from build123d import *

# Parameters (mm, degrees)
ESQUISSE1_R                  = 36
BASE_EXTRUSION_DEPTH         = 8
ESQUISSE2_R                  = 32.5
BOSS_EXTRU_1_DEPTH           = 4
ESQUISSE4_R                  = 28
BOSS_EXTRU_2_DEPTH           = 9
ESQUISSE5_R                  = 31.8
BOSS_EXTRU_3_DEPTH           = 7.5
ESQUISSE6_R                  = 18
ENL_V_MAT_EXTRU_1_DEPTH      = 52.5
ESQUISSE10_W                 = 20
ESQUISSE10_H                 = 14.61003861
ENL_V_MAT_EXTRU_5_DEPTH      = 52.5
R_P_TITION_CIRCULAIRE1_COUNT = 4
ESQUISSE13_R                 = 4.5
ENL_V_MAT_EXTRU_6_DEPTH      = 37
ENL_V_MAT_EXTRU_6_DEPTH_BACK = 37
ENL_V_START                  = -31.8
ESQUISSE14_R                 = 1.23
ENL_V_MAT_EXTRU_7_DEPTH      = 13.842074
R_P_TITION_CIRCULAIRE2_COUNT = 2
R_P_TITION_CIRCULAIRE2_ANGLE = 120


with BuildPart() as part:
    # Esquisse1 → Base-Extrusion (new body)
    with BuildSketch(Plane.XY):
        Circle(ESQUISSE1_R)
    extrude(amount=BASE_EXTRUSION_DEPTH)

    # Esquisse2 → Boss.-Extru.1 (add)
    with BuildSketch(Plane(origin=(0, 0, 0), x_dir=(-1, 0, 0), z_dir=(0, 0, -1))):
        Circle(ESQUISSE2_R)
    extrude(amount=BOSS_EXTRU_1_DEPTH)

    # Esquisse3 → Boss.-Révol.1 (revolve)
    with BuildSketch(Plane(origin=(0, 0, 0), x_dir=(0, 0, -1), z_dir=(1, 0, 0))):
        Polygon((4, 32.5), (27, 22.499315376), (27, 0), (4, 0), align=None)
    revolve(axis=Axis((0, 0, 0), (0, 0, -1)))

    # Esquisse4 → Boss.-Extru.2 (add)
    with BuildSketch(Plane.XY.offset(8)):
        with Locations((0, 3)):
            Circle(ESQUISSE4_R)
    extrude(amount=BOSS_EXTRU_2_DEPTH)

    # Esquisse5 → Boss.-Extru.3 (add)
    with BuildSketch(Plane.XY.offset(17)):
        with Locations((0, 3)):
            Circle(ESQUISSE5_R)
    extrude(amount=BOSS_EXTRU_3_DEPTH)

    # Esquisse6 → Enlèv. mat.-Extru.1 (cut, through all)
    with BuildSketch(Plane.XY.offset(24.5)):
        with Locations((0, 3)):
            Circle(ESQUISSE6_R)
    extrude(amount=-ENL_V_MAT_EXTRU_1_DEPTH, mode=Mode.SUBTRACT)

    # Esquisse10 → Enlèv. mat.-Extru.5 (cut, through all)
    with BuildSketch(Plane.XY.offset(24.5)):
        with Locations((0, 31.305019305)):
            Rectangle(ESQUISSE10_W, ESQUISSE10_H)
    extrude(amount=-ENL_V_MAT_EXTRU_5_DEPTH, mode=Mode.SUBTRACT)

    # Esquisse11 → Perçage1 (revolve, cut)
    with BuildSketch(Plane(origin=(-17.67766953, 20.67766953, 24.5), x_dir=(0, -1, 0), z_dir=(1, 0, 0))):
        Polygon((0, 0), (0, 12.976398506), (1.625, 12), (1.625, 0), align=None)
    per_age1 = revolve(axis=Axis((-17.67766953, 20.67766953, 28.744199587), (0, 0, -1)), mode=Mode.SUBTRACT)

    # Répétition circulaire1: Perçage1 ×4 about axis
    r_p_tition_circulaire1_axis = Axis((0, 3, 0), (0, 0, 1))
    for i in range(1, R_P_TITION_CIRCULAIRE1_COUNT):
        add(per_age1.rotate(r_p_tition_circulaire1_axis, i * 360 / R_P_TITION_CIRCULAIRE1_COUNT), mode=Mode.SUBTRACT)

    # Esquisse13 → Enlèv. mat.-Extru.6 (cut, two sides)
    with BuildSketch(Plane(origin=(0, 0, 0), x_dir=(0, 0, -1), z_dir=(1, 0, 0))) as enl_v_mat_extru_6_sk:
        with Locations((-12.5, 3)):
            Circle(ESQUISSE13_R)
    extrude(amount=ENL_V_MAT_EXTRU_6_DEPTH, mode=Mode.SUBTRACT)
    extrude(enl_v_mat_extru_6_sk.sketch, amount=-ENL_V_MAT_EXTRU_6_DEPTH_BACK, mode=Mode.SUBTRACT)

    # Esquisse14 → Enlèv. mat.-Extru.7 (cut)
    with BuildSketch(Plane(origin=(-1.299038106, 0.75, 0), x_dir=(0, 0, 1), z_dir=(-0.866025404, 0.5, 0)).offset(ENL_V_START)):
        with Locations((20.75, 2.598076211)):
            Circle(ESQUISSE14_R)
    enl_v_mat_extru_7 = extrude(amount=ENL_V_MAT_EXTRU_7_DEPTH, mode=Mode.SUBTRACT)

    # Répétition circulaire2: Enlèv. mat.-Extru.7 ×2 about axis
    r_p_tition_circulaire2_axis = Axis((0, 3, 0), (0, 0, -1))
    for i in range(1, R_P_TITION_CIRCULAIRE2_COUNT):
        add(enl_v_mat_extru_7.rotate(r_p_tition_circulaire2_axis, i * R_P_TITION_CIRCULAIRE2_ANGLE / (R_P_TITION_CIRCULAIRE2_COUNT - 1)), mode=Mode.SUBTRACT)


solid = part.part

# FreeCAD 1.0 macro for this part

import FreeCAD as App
import Part
import Sketcher
from FreeCAD import Vector
Q = App.Units.Quantity

doc = App.newDocument("Part")
body = doc.addObject("PartDesign::Body", "Body")

# Sketch on XY plane
sketch1 = body.newObject("Sketcher::SketchObject", "Sketch")
sketch1.AttachmentSupport = (doc.getObject("XY_Plane"), [""])
sketch1.MapMode = "FlatFace"
sketch1.addGeometry(Part.Circle(Vector(0, 0, 0), Vector(0, 0, 1), 36), False)
sketch1.addConstraint(Sketcher.Constraint("Coincident", 0, 3, -1, 1))
sketch1.addConstraint(Sketcher.Constraint("Diameter", 0, 72.0))
pad1 = body.newObject("PartDesign::Pad", "Pad")
pad1.Profile = sketch1
pad1.Length = 8

# Sketch on XY plane
sketch2 = body.newObject("Sketcher::SketchObject", "Sketch001")
sketch2.AttachmentSupport = (doc.getObject("XY_Plane"), [""])
sketch2.MapMode = "FlatFace"
sketch2.addGeometry(Part.Circle(Vector(0, 0, 0), Vector(0, 0, 1), 32), False)
sketch2.addConstraint(Sketcher.Constraint("Coincident", 0, 3, -1, 1))
sketch2.addConstraint(Sketcher.Constraint("Diameter", 0, 65.0))
pad2 = body.newObject("PartDesign::Pad", "Pad001")
pad2.Profile = sketch2
pad2.Length = 4
pad2.Reversed = True

# Sketch on YZ plane
sketch3 = body.newObject("Sketcher::SketchObject", "Sketch002")
sketch3.AttachmentSupport = (doc.getObject("YZ_Plane"), [""])
sketch3.MapMode = "FlatFace"
sketch3.addGeometry(Part.LineSegment(Vector(22, -27, 0), Vector(32, -4, 0)), False)
sketch3.addGeometry(Part.LineSegment(Vector(32, -4, 0), Vector(0, -4, 0)), False)
sketch3.addGeometry(Part.LineSegment(Vector(0, -4, 0), Vector(0, -27, 0)), False)
sketch3.addGeometry(Part.LineSegment(Vector(0, -27, 0), Vector(22, -27, 0)), False)
sketch3.addConstraint(Sketcher.Constraint("Coincident", 0, 2, 1, 1))
sketch3.addConstraint(Sketcher.Constraint("Coincident", 1, 2, 2, 1))
sketch3.addConstraint(Sketcher.Constraint("Coincident", 2, 2, 3, 1))
sketch3.addConstraint(Sketcher.Constraint("Coincident", 3, 2, 0, 1))
sketch3.addConstraint(Sketcher.Constraint("Horizontal", 1))
sketch3.addConstraint(Sketcher.Constraint("Vertical", 2))
sketch3.addConstraint(Sketcher.Constraint("Horizontal", 3))
sketch3.addConstraint(Sketcher.Constraint("PointOnObject", 1, 2, -2))
sketch3.addConstraint(Sketcher.Constraint("DistanceY", 2, 2, 2, 1, 23.0))
sketch3.addConstraint(Sketcher.Constraint("DistanceX", 1, 2, 1, 1, 32.5))
sketch3.addConstraint(Sketcher.Constraint("DistanceY", 0, 2, -1, 1, 4.0))
sketch3.addConstraint(Sketcher.Constraint("Angle", 0, Q("66.5 deg")))
revolution = body.newObject("PartDesign::Revolution", "Revolution")
revolution.Profile = sketch3
revolution.ReferenceAxis = (sketch3, ["V_Axis"])
revolution.Angle = 360

# Sketch on XY plane
sketch4 = body.newObject("Sketcher::SketchObject", "Sketch003")
sketch4.AttachmentSupport = (doc.getObject("XY_Plane"), [""])
sketch4.MapMode = "FlatFace"
sketch4.AttachmentOffset = App.Placement(Vector(0, 0, 8), App.Rotation())
sketch4.addGeometry(Part.Circle(Vector(0, 3, 0), Vector(0, 0, 1), 28), False)
sketch4.addConstraint(Sketcher.Constraint("PointOnObject", 0, 3, -2))
sketch4.addConstraint(Sketcher.Constraint("Diameter", 0, 56.0))
sketch4.addConstraint(Sketcher.Constraint("DistanceY", -1, 1, 0, 3, 3.0))
pad3 = body.newObject("PartDesign::Pad", "Pad002")
pad3.Profile = sketch4
pad3.Length = 9

# Sketch on XY plane
sketch5 = body.newObject("Sketcher::SketchObject", "Sketch004")
sketch5.AttachmentSupport = (doc.getObject("XY_Plane"), [""])
sketch5.MapMode = "FlatFace"
sketch5.AttachmentOffset = App.Placement(Vector(0, 0, 17), App.Rotation())
sketch5.addGeometry(Part.Circle(Vector(0, 3, 0), Vector(0, 0, 1), 32), False)
sketch5.addConstraint(Sketcher.Constraint("PointOnObject", 0, 3, -2))
sketch5.addConstraint(Sketcher.Constraint("Diameter", 0, 63.6))
sketch5.addConstraint(Sketcher.Constraint("DistanceY", -1, 1, 0, 3, 3.0))
pad4 = body.newObject("PartDesign::Pad", "Pad003")
pad4.Profile = sketch5
pad4.Length = 7.5

# Sketch on XY plane
sketch6 = body.newObject("Sketcher::SketchObject", "Sketch005")
sketch6.AttachmentSupport = (doc.getObject("XY_Plane"), [""])
sketch6.MapMode = "FlatFace"
sketch6.AttachmentOffset = App.Placement(Vector(0, 0, 24.5), App.Rotation())
sketch6.addGeometry(Part.Circle(Vector(0, 3, 0), Vector(0, 0, 1), 18), False)
sketch6.addConstraint(Sketcher.Constraint("PointOnObject", 0, 3, -2))
sketch6.addConstraint(Sketcher.Constraint("Diameter", 0, 36.0))
sketch6.addConstraint(Sketcher.Constraint("DistanceY", -1, 1, 0, 3, 3.0))
pocket1 = body.newObject("PartDesign::Pocket", "Pocket")
pocket1.Profile = sketch6
pocket1.Type = "ThroughAll"

# Sketch on XY plane
sketch7 = body.newObject("Sketcher::SketchObject", "Sketch006")
sketch7.AttachmentSupport = (doc.getObject("XY_Plane"), [""])
sketch7.MapMode = "FlatFace"
sketch7.AttachmentOffset = App.Placement(Vector(0, 0, 24.5), App.Rotation())
sketch7.addGeometry(Part.LineSegment(Vector(-10, 39, 0), Vector(-10, 24, 0)), False)
sketch7.addGeometry(Part.LineSegment(Vector(-10, 24, 0), Vector(10, 24, 0)), False)
sketch7.addGeometry(Part.LineSegment(Vector(10, 24, 0), Vector(10, 39, 0)), False)
sketch7.addGeometry(Part.LineSegment(Vector(10, 39, 0), Vector(-10, 39, 0)), False)
sketch7.addConstraint(Sketcher.Constraint("Coincident", 0, 2, 1, 1))
sketch7.addConstraint(Sketcher.Constraint("Coincident", 1, 2, 2, 1))
sketch7.addConstraint(Sketcher.Constraint("Coincident", 2, 2, 3, 1))
sketch7.addConstraint(Sketcher.Constraint("Coincident", 3, 2, 0, 1))
sketch7.addConstraint(Sketcher.Constraint("Vertical", 0))
sketch7.addConstraint(Sketcher.Constraint("Horizontal", 1))
sketch7.addConstraint(Sketcher.Constraint("Vertical", 2))
sketch7.addConstraint(Sketcher.Constraint("Horizontal", 3))
sketch7.addConstraint(Sketcher.Constraint("DistanceX", 1, 1, 1, 2, 20.0))
sketch7.addConstraint(Sketcher.Constraint("DistanceX", 0, 2, -1, 1, 10.0))
sketch7.addConstraint(Sketcher.Constraint("DistanceY", -1, 1, 0, 2, 24.0))
sketch7.addConstraint(Sketcher.Constraint("DistanceY", 0, 2, 0, 1, 14.610039))
pocket2 = body.newObject("PartDesign::Pocket", "Pocket001")
pocket2.Profile = sketch7
pocket2.Type = "ThroughAll"

# Sketch on YZ plane
sketch8 = body.newObject("Sketcher::SketchObject", "Sketch007")
sketch8.AttachmentSupport = (doc.getObject("YZ_Plane"), [""])
sketch8.MapMode = "FlatFace"
sketch8.AttachmentOffset = App.Placement(Vector(0, 0, -17.67767), App.Rotation())
sketch8.addGeometry(Part.LineSegment(Vector(20.7, 11.5, 0), Vector(20.7, 24.5, 0)), False)
sketch8.addGeometry(Part.LineSegment(Vector(20.7, 24.5, 0), Vector(19.1, 24.5, 0)), False)
sketch8.addGeometry(Part.LineSegment(Vector(19.1, 24.5, 0), Vector(19.1, 12.5, 0)), False)
sketch8.addGeometry(Part.LineSegment(Vector(19.1, 12.5, 0), Vector(20.7, 11.5, 0)), False)
sketch8.addGeometry(Part.LineSegment(Vector(20.7, 24.5, 0), Vector(20.7, 11.5, 0)), True)  # axis
sketch8.addConstraint(Sketcher.Constraint("Coincident", 0, 2, 1, 1))
sketch8.addConstraint(Sketcher.Constraint("Coincident", 1, 2, 2, 1))
sketch8.addConstraint(Sketcher.Constraint("Coincident", 2, 2, 3, 1))
sketch8.addConstraint(Sketcher.Constraint("Coincident", 3, 2, 0, 1))
sketch8.addConstraint(Sketcher.Constraint("Vertical", 0))
sketch8.addConstraint(Sketcher.Constraint("Horizontal", 1))
sketch8.addConstraint(Sketcher.Constraint("Vertical", 2))
sketch8.addConstraint(Sketcher.Constraint("Vertical", 4))
sketch8.addConstraint(Sketcher.Constraint("Coincident", 4, 1, 0, 2))
sketch8.addConstraint(Sketcher.Constraint("Equal", 0, 4))
sketch8.addConstraint(Sketcher.Constraint("DistanceY", 2, 2, 2, 1, 12.0))
sketch8.addConstraint(Sketcher.Constraint("Angle", 3, Q("-31 deg")))
sketch8.addConstraint(Sketcher.Constraint("DistanceY", -1, 1, 0, 2, 24.5))
sketch8.addConstraint(Sketcher.Constraint("DistanceX", 1, 2, 1, 1, 1.625))
sketch8.addConstraint(Sketcher.Constraint("DistanceX", -1, 1, 0, 2, 20.67767))
groove = body.newObject("PartDesign::Groove", "Groove")
groove.Profile = sketch8
groove.ReferenceAxis = (sketch8, ["Axis0"])
groove.Angle = 360
doc.recompute()

datumline = body.newObject("PartDesign::Line", "DatumLine")
datumline.Placement = App.Placement(Vector(0, 3, 0), App.Rotation(Vector(0, 0, 1), Vector(0, 0, 1)))
polarpattern = body.newObject("PartDesign::PolarPattern", "PolarPattern")
polarpattern.Originals = [groove]
polarpattern.Axis = (datumline, [""])
polarpattern.Angle = 360
polarpattern.Occurrences = 4
body.Tip = polarpattern

# Sketch on YZ plane
sketch9 = body.newObject("Sketcher::SketchObject", "Sketch008")
sketch9.AttachmentSupport = (doc.getObject("YZ_Plane"), [""])
sketch9.MapMode = "FlatFace"
sketch9.addGeometry(Part.Circle(Vector(3, 12.5, 0), Vector(0, 0, 1), 4.5), False)
sketch9.addConstraint(Sketcher.Constraint("Diameter", 0, 9.0))
sketch9.addConstraint(Sketcher.Constraint("DistanceX", -1, 1, 0, 3, 3.0))
sketch9.addConstraint(Sketcher.Constraint("DistanceY", -1, 1, 0, 3, 12.5))
pocket3 = body.newObject("PartDesign::Pocket", "Pocket002")
pocket3.Profile = sketch9
pocket3.Type = "ThroughAll"
pocket3.Midplane = True

# Sketch on an angled plane
sketch10 = body.newObject("Sketcher::SketchObject", "Sketch009")
sketch10.Placement = App.Placement(Vector(26.24057, -15.15, 0), App.Rotation(Vector(0, 0, 1), Vector(0.5, 0.866025404, 0), Vector(-0.866025404, 0.5, 0), "ZXY"))
sketch10.addGeometry(Part.Circle(Vector(20.8, 2.6, 0), Vector(0, 0, 1), 1.2), False)
sketch10.addConstraint(Sketcher.Constraint("Diameter", 0, 2.46))
sketch10.addConstraint(Sketcher.Constraint("DistanceX", -1, 1, 0, 3, 20.75))
sketch10.addConstraint(Sketcher.Constraint("DistanceY", -1, 1, 0, 3, 2.598076))
pocket4 = body.newObject("PartDesign::Pocket", "Pocket003")
pocket4.Profile = sketch10
pocket4.Length = 13.842074
pocket4.Reversed = True
doc.recompute()

datumline2 = body.newObject("PartDesign::Line", "DatumLine001")
datumline2.Placement = App.Placement(Vector(0, 3, 0), App.Rotation(Vector(0, 0, 1), Vector(0, 0, -1)))
polarpattern2 = body.newObject("PartDesign::PolarPattern", "PolarPattern001")
polarpattern2.Originals = [pocket4]
polarpattern2.Axis = (datumline2, [""])
polarpattern2.Angle = 120
polarpattern2.Occurrences = 2
body.Tip = polarpattern2

doc.recompute()
